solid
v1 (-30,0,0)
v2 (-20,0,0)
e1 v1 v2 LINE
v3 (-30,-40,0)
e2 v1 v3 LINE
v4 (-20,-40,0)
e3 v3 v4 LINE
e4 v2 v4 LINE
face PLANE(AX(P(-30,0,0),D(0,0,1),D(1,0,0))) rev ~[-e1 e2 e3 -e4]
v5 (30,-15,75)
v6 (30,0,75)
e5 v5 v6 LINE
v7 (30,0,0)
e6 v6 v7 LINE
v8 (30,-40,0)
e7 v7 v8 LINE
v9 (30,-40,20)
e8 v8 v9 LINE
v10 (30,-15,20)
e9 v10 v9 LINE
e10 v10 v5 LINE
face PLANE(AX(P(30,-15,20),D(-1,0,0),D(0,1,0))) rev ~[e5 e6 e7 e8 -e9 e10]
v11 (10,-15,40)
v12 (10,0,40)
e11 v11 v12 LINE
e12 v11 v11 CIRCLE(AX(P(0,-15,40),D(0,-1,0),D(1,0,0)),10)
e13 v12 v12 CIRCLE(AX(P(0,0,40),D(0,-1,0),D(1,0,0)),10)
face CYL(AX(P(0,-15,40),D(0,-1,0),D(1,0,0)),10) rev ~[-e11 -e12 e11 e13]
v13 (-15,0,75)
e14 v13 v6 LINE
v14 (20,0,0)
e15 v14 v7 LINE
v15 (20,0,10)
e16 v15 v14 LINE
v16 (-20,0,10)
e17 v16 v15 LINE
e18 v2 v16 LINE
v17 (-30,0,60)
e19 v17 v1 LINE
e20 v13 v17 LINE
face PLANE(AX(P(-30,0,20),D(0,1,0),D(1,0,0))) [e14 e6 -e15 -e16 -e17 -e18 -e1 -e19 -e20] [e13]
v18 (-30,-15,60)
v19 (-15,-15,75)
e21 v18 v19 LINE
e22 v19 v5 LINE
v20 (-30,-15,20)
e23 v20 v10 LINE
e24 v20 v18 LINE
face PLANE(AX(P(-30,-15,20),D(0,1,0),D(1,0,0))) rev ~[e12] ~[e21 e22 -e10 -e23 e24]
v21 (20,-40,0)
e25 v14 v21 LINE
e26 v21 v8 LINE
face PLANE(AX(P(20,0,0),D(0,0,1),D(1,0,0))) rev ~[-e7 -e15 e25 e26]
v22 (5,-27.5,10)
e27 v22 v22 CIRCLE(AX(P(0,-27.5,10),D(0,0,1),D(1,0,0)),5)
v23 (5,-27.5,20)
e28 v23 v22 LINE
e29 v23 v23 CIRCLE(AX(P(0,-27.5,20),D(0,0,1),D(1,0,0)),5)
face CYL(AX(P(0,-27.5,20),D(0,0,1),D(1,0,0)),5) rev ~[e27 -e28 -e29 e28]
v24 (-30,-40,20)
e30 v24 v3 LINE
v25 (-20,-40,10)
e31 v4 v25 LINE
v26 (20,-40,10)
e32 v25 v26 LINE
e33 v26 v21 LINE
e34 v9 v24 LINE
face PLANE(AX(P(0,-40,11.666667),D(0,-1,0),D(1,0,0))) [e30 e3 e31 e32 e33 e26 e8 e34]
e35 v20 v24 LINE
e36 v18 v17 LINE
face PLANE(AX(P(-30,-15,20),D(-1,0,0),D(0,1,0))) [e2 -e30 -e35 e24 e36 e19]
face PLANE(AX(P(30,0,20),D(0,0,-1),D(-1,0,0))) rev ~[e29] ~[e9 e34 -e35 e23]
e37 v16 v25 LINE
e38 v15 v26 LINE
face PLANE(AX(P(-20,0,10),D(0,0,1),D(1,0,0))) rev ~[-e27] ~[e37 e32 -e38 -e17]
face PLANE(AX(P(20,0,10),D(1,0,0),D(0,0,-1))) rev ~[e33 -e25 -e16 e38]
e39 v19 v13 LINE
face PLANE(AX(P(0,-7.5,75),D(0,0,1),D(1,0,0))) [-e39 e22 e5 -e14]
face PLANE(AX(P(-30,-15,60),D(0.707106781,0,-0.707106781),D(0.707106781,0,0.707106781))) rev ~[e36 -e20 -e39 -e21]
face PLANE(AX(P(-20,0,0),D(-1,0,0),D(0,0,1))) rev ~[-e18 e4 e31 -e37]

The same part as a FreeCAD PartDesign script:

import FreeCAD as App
import Part
import Sketcher
Q = App.Units.Quantity

doc = App.newDocument("Part")
params = doc.addObject("Spreadsheet::Sheet", "Params")
for row, (alias, value) in enumerate([
    ("sketch1_width", "10 mm"),
    ("sketch1_width2", "40 mm"),
    ("sketch1_height", "20 mm"),
    ("pad1_length", "40 mm"),
    ("sketch2_width", "60 mm"),
    ("sketch2_height", "15 mm"),
    ("pad2_length", "55 mm"),
    ("sketch3_width", "15 mm"),
    ("pocket1_length", "38.1 mm"),
    ("sketch4_diameter", "20 mm"),
    ("pocket2_length", "25.4 mm"),
    ("sketch5_diameter", "10 mm"),
    ("pocket3_length", "25.4 mm"),
], start=1):
    params.set(f"A{row}", alias)
    params.set(f"B{row}", "=" + value)
    params.setAlias(f"B{row}", alias)

body = doc.addObject("PartDesign::Body", "Body")

sketch1 = body.newObject("Sketcher::SketchObject", "Sketch")
sketch1.AttachmentSupport = (doc.getObject("XZ_Plane"), [""])
sketch1.MapMode = "FlatFace"
sketch1.addGeometry([
    Part.LineSegment(App.Vector(-30, 20, 0), App.Vector(-30, 0, 0)),
    Part.LineSegment(App.Vector(-30, 0, 0), App.Vector(-20, 0, 0)),
    Part.LineSegment(App.Vector(-20, 0, 0), App.Vector(-20, 10, 0)),
    Part.LineSegment(App.Vector(-20, 10, 0), App.Vector(20, 10, 0)),
    Part.LineSegment(App.Vector(20, 10, 0), App.Vector(20, 0, 0)),
    Part.LineSegment(App.Vector(20, 0, 0), App.Vector(30, 0, 0)),
    Part.LineSegment(App.Vector(30, 0, 0), App.Vector(30, 20, 0)),
    Part.LineSegment(App.Vector(30, 20, 0), App.Vector(-30, 20, 0)),
], False)
sketch1.addConstraint([
    Sketcher.Constraint("Coincident", 0, 2, 1, 1),
    Sketcher.Constraint("Coincident", 1, 2, 2, 1),
    Sketcher.Constraint("Coincident", 2, 2, 3, 1),
    Sketcher.Constraint("Coincident", 3, 2, 4, 1),
    Sketcher.Constraint("Coincident", 4, 2, 5, 1),
    Sketcher.Constraint("Coincident", 5, 2, 6, 1),
    Sketcher.Constraint("Coincident", 6, 2, 7, 1),
    Sketcher.Constraint("Coincident", 7, 2, 0, 1),
    Sketcher.Constraint("Vertical", 0),
    Sketcher.Constraint("Horizontal", 1),
    Sketcher.Constraint("Vertical", 2),
    Sketcher.Constraint("Horizontal", 3),
    Sketcher.Constraint("Vertical", 4),
    Sketcher.Constraint("Horizontal", 5),
    Sketcher.Constraint("Vertical", 6),
    Sketcher.Constraint("Horizontal", 7),
    Sketcher.Constraint("Symmetric", 1, 2, 4, 2, -1, 1),
    Sketcher.Constraint("Symmetric", 0, 2, 5, 2, -2),
    Sketcher.Constraint("Equal", 5, 2),
    Sketcher.Constraint("DistanceX", 1, 1, 1, 2, Q("10 mm")),
    Sketcher.Constraint("DistanceX", 3, 1, 3, 2, Q("40 mm")),
    Sketcher.Constraint("DistanceY", 0, 2, 0, 1, Q("20 mm")),
])
sketch1.setExpression("Constraints[19]", "Params.sketch1_width")
sketch1.setExpression("Constraints[20]", "Params.sketch1_width2")
sketch1.setExpression("Constraints[21]", "Params.sketch1_height")
pad1 = body.newObject("PartDesign::Pad", "Pad")
pad1.Profile = sketch1
pad1.setExpression("Length", "Params.pad1_length")

sketch2 = body.newObject("Sketcher::SketchObject", "Sketch001")
sketch2.AttachmentSupport = (doc.getObject("XY_Plane"), [""])
sketch2.MapMode = "FlatFace"
sketch2.AttachmentOffset = App.Placement(App.Vector(0, 0, 20), App.Rotation())
sketch2.addGeometry([
    Part.LineSegment(App.Vector(-30, 0, 0), App.Vector(-30, -15, 0)),
    Part.LineSegment(App.Vector(-30, -15, 0), App.Vector(30, -15, 0)),
    Part.LineSegment(App.Vector(30, -15, 0), App.Vector(30, 0, 0)),
    Part.LineSegment(App.Vector(30, 0, 0), App.Vector(-30, 0, 0)),
], False)
sketch2.addConstraint([
    Sketcher.Constraint("Coincident", 0, 2, 1, 1),
    Sketcher.Constraint("Coincident", 1, 2, 2, 1),
    Sketcher.Constraint("Coincident", 2, 2, 3, 1),
    Sketcher.Constraint("Coincident", 3, 2, 0, 1),
    Sketcher.Constraint("Vertical", 0),
    Sketcher.Constraint("Horizontal", 1),
    Sketcher.Constraint("Vertical", 2),
    Sketcher.Constraint("Horizontal", 3),
    Sketcher.Constraint("Symmetric", 2, 2, 3, 2, -1, 1),
    Sketcher.Constraint("DistanceX", 1, 1, 1, 2, Q("60 mm")),
    Sketcher.Constraint("DistanceY", 0, 2, 0, 1, Q("15 mm")),
])
sketch2.setExpression("Constraints[9]", "Params.sketch2_width")
sketch2.setExpression("Constraints[10]", "Params.sketch2_height")
pad2 = body.newObject("PartDesign::Pad", "Pad001")
pad2.Profile = sketch2
pad2.setExpression("Length", "Params.pad2_length")

sketch3 = body.newObject("Sketcher::SketchObject", "Sketch002")
sketch3.AttachmentSupport = (doc.getObject("XZ_Plane"), [""])
sketch3.MapMode = "FlatFace"
sketch3.AttachmentOffset = App.Placement(App.Vector(0, 0, 15), App.Rotation())
sketch3.addGeometry([
    Part.LineSegment(App.Vector(-30, 60, 0), App.Vector(-15, 75, 0)),
    Part.LineSegment(App.Vector(-15, 75, 0), App.Vector(-30, 75, 0)),
    Part.LineSegment(App.Vector(-30, 75, 0), App.Vector(-30, 60, 0)),
], False)
sketch3.addConstraint([
    Sketcher.Constraint("Coincident", 0, 2, 1, 1),
    Sketcher.Constraint("Coincident", 1, 2, 2, 1),
    Sketcher.Constraint("Coincident", 2, 2, 0, 1),
    Sketcher.Constraint("Horizontal", 1),
    Sketcher.Constraint("Vertical", 2),
    Sketcher.Constraint("Equal", 1, 2),
    Sketcher.Constraint("DistanceX", 1, 2, 1, 1, Q("15 mm")),
    Sketcher.Constraint("DistanceX", 0, 2, -1, 1, Q("15 mm")),
    Sketcher.Constraint("DistanceY", -1, 1, 0, 2, Q("75 mm")),
])
sketch3.setExpression("Constraints[6]", "Params.sketch3_width")
pocket1 = body.newObject("PartDesign::Pocket", "Pocket")
pocket1.Profile = sketch3
pocket1.setExpression("Length", "Params.pocket1_length")

sketch4 = body.newObject("Sketcher::SketchObject", "Sketch003")
sketch4.AttachmentSupport = (doc.getObject("XZ_Plane"), [""])
sketch4.MapMode = "FlatFace"
sketch4.AttachmentOffset = App.Placement(App.Vector(0, 0, 15), App.Rotation())
sketch4.addGeometry(Part.Circle(App.Vector(0, 40, 0), App.Vector(0, 0, 1), 10), False)
sketch4.addConstraint([
    Sketcher.Constraint("PointOnObject", 0, 3, -2),
    Sketcher.Constraint("Diameter", 0, Q("20 mm")),
    Sketcher.Constraint("DistanceY", -1, 1, 0, 3, Q("40 mm")),
])
sketch4.setExpression("Constraints[1]", "Params.sketch4_diameter")
pocket2 = body.newObject("PartDesign::Pocket", "Pocket001")
pocket2.Profile = sketch4
pocket2.setExpression("Length", "Params.pocket2_length")

sketch5 = body.newObject("Sketcher::SketchObject", "Sketch004")
sketch5.AttachmentSupport = (doc.getObject("XY_Plane"), [""])
sketch5.MapMode = "FlatFace"
sketch5.AttachmentOffset = App.Placement(App.Vector(0, 0, 20), App.Rotation())
sketch5.addGeometry(Part.Circle(App.Vector(0, -28, 0), App.Vector(0, 0, 1), 5), False)
sketch5.addConstraint([
    Sketcher.Constraint("PointOnObject", 0, 3, -2),
    Sketcher.Constraint("Diameter", 0, Q("10 mm")),
    Sketcher.Constraint("DistanceY", 0, 3, -1, 1, Q("27.5 mm")),
])
sketch5.setExpression("Constraints[1]", "Params.sketch5_diameter")
pocket3 = body.newObject("PartDesign::Pocket", "Pocket002")
pocket3.Profile = sketch5
pocket3.setExpression("Length", "Params.pocket3_length")

doc.recompute()
